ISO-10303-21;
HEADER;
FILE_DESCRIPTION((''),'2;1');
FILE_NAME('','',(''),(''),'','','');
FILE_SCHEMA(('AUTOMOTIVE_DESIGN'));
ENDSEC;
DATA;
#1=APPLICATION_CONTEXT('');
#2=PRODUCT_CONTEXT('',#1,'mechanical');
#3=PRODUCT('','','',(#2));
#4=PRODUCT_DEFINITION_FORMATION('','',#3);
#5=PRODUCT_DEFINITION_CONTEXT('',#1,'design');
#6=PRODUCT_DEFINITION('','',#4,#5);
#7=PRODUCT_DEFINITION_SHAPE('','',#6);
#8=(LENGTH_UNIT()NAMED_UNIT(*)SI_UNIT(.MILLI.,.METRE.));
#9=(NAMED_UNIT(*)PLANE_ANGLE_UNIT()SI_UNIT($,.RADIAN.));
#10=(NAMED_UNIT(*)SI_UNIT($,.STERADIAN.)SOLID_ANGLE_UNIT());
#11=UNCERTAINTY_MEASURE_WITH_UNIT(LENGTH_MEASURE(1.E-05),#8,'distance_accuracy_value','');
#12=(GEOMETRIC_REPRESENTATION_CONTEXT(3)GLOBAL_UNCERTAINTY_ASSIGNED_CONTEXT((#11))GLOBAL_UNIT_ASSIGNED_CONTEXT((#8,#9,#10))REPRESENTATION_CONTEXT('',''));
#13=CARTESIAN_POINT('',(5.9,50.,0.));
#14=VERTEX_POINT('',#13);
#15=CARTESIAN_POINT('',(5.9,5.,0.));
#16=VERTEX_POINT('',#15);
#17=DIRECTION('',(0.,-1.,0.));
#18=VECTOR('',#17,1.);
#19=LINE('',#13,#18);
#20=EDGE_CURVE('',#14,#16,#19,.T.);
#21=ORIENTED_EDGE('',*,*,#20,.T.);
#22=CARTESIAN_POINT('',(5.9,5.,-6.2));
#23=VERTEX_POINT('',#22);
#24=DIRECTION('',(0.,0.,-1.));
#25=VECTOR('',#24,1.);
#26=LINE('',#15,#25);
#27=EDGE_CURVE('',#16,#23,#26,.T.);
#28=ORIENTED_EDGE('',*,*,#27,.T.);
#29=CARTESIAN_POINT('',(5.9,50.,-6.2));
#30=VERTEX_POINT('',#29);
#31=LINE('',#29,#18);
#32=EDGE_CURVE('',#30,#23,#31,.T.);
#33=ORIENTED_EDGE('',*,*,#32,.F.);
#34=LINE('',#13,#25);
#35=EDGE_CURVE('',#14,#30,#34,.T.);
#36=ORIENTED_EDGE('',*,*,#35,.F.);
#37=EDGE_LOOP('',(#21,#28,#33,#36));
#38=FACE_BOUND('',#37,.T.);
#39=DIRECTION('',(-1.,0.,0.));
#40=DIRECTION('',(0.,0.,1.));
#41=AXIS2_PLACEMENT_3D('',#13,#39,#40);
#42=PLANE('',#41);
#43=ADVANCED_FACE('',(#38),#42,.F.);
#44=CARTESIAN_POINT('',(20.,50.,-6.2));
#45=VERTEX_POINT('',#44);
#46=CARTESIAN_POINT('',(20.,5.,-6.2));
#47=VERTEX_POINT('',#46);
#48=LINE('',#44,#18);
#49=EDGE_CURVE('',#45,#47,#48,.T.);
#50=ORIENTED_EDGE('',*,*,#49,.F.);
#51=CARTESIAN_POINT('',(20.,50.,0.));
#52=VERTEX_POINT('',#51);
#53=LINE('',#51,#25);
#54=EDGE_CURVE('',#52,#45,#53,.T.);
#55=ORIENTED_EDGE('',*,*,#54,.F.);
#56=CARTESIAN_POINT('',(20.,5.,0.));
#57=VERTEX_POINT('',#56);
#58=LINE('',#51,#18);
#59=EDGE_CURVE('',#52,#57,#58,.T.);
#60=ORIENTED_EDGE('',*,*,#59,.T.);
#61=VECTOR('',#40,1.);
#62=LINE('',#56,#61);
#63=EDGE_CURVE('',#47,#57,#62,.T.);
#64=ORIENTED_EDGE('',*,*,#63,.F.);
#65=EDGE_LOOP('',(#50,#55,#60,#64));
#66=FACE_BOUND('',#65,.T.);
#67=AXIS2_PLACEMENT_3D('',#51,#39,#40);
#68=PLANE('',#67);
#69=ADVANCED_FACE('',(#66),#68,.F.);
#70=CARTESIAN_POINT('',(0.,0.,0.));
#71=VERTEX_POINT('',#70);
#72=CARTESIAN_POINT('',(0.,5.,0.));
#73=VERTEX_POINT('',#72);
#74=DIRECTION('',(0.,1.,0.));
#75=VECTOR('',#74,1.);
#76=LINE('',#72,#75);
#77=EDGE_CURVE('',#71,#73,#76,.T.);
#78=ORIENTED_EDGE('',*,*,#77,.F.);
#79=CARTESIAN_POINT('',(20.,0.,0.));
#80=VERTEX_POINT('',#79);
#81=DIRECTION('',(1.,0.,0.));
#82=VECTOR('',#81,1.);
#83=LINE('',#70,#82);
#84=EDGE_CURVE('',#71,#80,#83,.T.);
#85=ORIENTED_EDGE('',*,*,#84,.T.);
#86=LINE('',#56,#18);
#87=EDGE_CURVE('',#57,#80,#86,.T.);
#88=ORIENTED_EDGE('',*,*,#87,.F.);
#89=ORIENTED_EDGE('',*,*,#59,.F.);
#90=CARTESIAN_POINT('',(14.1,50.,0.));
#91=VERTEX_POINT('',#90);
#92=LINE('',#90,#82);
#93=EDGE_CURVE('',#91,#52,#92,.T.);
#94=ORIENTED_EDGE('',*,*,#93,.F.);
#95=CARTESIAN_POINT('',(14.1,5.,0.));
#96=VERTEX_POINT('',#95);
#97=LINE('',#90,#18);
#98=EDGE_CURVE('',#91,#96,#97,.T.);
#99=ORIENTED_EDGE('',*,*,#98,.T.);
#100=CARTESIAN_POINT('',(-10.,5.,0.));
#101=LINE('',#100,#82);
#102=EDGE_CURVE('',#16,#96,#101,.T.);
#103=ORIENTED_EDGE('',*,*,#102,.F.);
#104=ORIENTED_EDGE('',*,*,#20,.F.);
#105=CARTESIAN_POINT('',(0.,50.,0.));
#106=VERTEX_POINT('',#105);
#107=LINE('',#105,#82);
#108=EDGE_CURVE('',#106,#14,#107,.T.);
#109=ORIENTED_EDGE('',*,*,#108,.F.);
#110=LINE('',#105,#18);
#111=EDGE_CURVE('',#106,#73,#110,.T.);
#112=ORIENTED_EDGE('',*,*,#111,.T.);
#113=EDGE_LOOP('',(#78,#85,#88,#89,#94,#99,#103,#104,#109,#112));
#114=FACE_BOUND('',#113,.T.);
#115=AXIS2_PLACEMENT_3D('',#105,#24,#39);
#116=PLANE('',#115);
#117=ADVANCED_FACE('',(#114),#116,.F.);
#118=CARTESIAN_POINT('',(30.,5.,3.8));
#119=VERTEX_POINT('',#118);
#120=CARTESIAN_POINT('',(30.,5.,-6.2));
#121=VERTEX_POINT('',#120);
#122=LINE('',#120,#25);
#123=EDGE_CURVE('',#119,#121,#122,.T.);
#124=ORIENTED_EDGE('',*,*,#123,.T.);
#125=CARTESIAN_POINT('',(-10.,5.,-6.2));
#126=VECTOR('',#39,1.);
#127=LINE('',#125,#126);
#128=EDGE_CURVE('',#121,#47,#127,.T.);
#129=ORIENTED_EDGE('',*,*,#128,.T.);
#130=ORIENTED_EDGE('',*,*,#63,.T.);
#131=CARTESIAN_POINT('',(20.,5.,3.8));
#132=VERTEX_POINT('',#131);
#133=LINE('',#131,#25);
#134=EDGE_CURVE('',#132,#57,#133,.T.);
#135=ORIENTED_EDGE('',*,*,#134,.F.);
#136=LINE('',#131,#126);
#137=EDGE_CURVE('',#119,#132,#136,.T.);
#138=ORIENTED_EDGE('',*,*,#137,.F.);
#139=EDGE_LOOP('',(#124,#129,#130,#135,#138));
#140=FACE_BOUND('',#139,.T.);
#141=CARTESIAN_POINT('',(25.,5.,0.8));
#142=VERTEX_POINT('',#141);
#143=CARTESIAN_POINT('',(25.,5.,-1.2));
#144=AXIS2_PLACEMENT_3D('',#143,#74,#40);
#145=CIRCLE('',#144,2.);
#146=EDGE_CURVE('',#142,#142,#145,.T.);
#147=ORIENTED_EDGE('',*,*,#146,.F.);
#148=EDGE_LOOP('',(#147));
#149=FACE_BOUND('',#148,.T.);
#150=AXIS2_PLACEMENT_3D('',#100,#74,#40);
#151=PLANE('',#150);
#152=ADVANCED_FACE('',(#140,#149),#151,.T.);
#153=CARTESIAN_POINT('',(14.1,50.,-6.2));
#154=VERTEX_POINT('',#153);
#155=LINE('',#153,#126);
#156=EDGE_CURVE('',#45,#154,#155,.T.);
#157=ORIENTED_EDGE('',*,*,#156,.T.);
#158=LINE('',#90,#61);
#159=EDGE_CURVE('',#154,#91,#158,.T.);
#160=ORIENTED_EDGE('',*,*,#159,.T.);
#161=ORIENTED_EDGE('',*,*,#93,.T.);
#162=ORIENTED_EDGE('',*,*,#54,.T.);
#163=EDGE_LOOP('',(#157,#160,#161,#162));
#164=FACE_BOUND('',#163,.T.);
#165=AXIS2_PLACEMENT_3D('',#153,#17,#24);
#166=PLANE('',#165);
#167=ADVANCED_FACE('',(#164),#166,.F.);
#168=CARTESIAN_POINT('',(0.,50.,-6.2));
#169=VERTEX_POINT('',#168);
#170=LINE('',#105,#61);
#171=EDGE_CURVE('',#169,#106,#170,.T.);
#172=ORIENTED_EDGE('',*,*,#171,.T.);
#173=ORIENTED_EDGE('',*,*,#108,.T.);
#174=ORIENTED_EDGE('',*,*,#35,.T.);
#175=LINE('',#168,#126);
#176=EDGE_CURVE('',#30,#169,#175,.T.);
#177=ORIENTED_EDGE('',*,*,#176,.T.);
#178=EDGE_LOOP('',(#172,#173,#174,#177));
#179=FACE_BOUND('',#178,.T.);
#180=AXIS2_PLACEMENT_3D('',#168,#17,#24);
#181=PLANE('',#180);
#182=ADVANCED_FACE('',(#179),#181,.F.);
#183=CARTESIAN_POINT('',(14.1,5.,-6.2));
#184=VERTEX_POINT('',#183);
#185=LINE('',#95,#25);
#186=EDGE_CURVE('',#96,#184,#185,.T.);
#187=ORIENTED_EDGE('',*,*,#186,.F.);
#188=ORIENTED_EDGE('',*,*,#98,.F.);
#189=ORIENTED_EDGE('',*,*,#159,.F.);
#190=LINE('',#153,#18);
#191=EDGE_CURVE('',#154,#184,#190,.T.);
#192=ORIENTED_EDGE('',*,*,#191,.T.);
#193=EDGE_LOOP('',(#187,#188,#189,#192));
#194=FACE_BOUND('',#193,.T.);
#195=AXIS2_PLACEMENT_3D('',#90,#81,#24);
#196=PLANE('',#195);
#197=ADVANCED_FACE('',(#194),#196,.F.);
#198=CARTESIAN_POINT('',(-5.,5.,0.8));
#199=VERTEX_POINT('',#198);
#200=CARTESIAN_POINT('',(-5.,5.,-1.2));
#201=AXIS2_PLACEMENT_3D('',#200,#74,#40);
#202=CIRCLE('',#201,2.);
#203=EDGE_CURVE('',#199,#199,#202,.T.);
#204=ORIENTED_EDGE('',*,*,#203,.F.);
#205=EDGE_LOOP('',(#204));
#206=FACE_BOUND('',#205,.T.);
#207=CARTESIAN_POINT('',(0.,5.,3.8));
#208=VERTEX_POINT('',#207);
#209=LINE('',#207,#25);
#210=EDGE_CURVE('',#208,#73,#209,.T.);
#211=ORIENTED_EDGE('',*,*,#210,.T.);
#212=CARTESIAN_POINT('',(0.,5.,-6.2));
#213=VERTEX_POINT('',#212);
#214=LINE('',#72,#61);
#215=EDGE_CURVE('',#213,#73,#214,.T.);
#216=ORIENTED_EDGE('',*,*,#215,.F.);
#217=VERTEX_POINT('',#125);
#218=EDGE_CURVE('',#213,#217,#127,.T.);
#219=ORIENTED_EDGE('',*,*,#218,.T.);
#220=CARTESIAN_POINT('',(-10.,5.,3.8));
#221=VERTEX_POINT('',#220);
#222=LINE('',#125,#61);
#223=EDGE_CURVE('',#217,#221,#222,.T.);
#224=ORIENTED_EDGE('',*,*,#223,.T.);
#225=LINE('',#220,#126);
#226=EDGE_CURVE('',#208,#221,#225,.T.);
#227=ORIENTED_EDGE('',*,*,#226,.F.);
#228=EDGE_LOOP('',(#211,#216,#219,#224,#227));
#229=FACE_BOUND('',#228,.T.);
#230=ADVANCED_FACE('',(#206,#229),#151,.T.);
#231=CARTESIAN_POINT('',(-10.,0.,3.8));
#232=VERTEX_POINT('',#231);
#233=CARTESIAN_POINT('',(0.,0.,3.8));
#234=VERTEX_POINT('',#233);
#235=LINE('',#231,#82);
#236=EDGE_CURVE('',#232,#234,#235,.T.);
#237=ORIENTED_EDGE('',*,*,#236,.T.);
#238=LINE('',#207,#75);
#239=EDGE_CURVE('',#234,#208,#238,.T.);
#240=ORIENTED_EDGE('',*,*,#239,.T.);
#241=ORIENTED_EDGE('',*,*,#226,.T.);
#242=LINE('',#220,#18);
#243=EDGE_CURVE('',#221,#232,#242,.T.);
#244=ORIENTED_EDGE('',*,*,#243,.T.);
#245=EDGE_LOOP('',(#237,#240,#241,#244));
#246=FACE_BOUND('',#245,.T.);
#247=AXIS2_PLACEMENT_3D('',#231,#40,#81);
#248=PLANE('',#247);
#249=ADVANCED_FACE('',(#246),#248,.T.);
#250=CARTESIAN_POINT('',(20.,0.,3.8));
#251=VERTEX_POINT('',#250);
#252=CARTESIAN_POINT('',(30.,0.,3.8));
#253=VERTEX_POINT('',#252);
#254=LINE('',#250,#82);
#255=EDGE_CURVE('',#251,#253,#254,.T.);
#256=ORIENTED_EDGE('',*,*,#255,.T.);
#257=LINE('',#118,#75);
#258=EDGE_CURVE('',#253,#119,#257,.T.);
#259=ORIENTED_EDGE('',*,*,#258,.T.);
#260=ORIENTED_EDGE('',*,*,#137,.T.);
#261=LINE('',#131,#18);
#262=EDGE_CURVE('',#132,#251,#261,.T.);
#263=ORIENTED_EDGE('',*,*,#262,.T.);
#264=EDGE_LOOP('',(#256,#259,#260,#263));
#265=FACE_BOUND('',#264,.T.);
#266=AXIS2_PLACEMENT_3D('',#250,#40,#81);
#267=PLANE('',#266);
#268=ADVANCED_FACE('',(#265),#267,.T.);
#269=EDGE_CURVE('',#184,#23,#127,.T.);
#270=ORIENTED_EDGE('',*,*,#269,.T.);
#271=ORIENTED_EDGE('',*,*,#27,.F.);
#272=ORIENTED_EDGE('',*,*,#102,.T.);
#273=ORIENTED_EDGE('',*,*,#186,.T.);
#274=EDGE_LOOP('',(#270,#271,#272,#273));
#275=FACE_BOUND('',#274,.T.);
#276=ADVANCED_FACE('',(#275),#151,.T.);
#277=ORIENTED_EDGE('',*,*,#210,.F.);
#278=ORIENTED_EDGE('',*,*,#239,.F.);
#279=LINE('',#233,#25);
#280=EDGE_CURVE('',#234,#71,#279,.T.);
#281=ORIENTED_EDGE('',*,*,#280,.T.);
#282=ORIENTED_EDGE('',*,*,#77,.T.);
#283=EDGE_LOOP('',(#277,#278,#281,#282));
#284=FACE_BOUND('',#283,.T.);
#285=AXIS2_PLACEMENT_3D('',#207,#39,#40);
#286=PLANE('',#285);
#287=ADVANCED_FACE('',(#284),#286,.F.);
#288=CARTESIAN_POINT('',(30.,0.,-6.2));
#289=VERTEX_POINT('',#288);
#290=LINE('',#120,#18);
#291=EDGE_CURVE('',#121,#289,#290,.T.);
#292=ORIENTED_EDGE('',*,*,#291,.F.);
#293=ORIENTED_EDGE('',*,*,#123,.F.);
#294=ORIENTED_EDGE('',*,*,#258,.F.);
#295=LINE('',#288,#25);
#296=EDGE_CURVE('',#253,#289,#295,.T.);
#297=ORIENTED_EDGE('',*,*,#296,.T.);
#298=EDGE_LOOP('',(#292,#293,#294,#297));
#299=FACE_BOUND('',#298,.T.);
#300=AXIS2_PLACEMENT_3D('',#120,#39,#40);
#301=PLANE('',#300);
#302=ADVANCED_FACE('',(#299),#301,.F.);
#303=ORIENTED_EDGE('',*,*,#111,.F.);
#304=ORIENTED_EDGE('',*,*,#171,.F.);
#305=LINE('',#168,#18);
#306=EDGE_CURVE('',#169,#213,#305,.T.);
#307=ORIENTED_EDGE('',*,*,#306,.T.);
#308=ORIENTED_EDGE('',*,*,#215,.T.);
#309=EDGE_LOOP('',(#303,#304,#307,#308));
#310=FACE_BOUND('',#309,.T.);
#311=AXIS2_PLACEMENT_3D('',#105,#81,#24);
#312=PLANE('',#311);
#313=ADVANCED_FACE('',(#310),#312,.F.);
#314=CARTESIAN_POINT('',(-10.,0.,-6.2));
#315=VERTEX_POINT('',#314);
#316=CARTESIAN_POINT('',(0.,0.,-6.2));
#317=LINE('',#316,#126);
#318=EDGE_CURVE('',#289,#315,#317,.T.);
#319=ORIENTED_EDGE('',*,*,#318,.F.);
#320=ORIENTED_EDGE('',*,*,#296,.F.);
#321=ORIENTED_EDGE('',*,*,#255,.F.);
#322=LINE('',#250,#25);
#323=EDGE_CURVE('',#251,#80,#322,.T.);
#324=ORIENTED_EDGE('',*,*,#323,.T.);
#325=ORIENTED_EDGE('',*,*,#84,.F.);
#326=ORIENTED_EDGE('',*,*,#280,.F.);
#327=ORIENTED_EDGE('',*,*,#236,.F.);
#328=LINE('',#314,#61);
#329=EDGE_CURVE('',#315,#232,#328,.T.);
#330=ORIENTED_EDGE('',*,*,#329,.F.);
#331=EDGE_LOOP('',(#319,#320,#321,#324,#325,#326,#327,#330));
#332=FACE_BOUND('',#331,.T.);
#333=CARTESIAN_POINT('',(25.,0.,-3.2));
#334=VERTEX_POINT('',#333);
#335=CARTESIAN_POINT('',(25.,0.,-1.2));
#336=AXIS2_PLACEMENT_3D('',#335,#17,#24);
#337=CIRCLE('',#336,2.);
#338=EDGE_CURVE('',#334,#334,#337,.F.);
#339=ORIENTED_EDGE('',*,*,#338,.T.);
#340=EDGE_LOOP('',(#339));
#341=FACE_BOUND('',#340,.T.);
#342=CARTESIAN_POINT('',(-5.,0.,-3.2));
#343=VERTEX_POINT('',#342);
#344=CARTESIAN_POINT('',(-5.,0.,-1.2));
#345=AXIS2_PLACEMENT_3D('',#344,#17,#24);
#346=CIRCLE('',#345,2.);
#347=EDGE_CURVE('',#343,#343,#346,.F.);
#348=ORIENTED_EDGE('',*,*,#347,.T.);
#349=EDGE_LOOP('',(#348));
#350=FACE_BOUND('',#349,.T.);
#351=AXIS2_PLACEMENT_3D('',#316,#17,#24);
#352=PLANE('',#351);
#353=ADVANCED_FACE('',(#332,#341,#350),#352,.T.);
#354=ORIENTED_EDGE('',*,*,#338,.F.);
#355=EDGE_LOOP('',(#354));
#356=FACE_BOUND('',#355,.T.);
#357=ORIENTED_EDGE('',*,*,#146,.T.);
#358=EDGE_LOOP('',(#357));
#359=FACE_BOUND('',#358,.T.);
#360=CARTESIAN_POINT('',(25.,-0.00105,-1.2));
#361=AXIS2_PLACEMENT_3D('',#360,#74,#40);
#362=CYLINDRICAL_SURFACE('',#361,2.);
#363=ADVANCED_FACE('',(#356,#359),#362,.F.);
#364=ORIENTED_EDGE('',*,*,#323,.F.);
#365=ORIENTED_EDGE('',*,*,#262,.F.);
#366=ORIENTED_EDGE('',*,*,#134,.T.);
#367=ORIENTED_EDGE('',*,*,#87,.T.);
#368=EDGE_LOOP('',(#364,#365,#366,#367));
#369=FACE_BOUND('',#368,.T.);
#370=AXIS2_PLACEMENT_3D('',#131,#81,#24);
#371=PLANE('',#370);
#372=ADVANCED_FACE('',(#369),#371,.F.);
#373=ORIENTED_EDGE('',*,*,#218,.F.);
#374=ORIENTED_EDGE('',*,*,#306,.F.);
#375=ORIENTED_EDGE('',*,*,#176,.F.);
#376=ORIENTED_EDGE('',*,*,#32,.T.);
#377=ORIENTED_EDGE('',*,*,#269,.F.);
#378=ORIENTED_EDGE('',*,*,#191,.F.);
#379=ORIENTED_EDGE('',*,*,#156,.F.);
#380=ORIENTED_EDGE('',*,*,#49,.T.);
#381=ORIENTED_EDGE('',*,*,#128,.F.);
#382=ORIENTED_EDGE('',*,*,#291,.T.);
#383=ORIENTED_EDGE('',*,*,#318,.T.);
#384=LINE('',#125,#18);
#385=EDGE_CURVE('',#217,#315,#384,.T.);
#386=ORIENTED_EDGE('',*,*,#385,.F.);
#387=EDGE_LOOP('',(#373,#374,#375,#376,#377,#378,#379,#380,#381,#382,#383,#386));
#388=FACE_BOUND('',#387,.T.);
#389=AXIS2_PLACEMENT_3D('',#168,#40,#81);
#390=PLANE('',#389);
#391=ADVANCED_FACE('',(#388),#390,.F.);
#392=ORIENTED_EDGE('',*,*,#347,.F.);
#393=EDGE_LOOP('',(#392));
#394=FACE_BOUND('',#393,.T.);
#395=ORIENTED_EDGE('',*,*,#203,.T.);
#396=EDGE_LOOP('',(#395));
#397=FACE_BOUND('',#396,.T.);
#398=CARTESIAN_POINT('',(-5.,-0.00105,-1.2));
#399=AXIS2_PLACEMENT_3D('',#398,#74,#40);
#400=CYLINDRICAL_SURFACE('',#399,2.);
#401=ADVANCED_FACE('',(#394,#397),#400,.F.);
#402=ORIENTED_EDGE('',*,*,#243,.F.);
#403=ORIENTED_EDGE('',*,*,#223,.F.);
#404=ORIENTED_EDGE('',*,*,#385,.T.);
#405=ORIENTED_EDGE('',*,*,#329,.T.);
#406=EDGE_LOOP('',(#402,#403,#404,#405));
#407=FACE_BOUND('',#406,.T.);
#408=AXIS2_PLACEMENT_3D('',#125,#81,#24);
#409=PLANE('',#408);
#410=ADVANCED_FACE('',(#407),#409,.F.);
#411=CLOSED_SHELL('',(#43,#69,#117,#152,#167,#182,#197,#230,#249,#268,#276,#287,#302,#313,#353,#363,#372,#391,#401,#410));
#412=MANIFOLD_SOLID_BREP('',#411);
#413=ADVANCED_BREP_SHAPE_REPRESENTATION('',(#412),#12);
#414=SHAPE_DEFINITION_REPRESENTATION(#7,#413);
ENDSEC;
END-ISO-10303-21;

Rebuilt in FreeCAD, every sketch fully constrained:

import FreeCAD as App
import Part
import Sketcher


def add_polygon(sketch, points):
    """Adds a closed chain of lines whose ends are joined by coincident constraints."""
    first, n = sketch.GeometryCount, len(points)
    for a, b in zip(points, points[1:] + points[:1]):
        sketch.addGeometry(Part.LineSegment(App.Vector(*a, 0), App.Vector(*b, 0)), False)
    for i in range(n):
        sketch.addConstraint(Sketcher.Constraint("Coincident", first + i, 2, first + (i + 1) % n, 1))

doc = App.newDocument("Part")
body = doc.addObject("PartDesign::Body", "Body")

# Sketch on XZ plane
sketch1 = body.newObject("Sketcher::SketchObject", "Sketch")
sketch1.AttachmentSupport = (doc.getObject("XZ_Plane"), [""])
sketch1.MapMode = "FlatFace"
add_polygon(sketch1, [(0, -6), (0, 0), (6, 0), (6, -6)])  # lines 0-3
sketch1.addConstraint(Sketcher.Constraint("Vertical", 0))
sketch1.addConstraint(Sketcher.Constraint("Horizontal", 1))
sketch1.addConstraint(Sketcher.Constraint("Vertical", 2))
sketch1.addConstraint(Sketcher.Constraint("Horizontal", 3))
sketch1.addConstraint(Sketcher.Constraint("Coincident", 0, 2, -1, 1))
sketch1.addConstraint(Sketcher.Constraint("DistanceX", 1, 1, 1, 2, 5.9))
sketch1.addConstraint(Sketcher.Constraint("DistanceY", 0, 1, 0, 2, 6.2))
pad1 = body.newObject("PartDesign::Pad", "Pad")
pad1.Profile = sketch1
pad1.Length = 50
pad1.Reversed = True
body2 = doc.addObject("PartDesign::Body", "Body001")

# Sketch on XZ plane
sketch2 = body2.newObject("Sketcher::SketchObject", "Sketch001")
sketch2.AttachmentSupport = (doc.getObject("XZ_Plane001"), [""])
sketch2.MapMode = "FlatFace"
add_polygon(sketch2, [(14, -6), (14, 0), (20, 0), (20, -6)])  # lines 0-3
sketch2.addConstraint(Sketcher.Constraint("Vertical", 0))
sketch2.addConstraint(Sketcher.Constraint("Horizontal", 1))
sketch2.addConstraint(Sketcher.Constraint("Vertical", 2))
sketch2.addConstraint(Sketcher.Constraint("Horizontal", 3))
sketch2.addConstraint(Sketcher.Constraint("PointOnObject", 0, 2, -1))
sketch2.addConstraint(Sketcher.Constraint("DistanceX", 1, 1, 1, 2, 5.9))
sketch2.addConstraint(Sketcher.Constraint("DistanceY", 0, 1, 0, 2, 6.2))
sketch2.addConstraint(Sketcher.Constraint("DistanceX", -1, 1, 1, 2, 20.0))
pad2 = body2.newObject("PartDesign::Pad", "Pad001")
pad2.Profile = sketch2
pad2.Length = 50
pad2.Reversed = True
body.AllowCompound = True
doc.recompute()

boolean = body.newObject("PartDesign::Boolean", "Boolean")
boolean.Type = "Fuse"
boolean.addObjects([body2])

# Sketch on XZ plane
sketch3 = body.newObject("Sketcher::SketchObject", "Sketch002")
sketch3.AttachmentSupport = (doc.getObject("XZ_Plane"), [""])
sketch3.MapMode = "FlatFace"
add_polygon(sketch3, [(-10, -6), (-10, 0), (30, 0), (30, -6)])  # lines 0-3
sketch3.addConstraint(Sketcher.Constraint("Vertical", 0))
sketch3.addConstraint(Sketcher.Constraint("Horizontal", 1))
sketch3.addConstraint(Sketcher.Constraint("Vertical", 2))
sketch3.addConstraint(Sketcher.Constraint("Horizontal", 3))
sketch3.addConstraint(Sketcher.Constraint("PointOnObject", 0, 2, -1))
sketch3.addConstraint(Sketcher.Constraint("DistanceX", 1, 1, 1, 2, 40.0))
sketch3.addConstraint(Sketcher.Constraint("DistanceY", 0, 1, 0, 2, 6.2))
sketch3.addConstraint(Sketcher.Constraint("DistanceX", 0, 2, -1, 1, 10.0))
pad3 = body.newObject("PartDesign::Pad", "Pad002")
pad3.Profile = sketch3
pad3.Length = 5
pad3.Reversed = True

# Sketch on XY plane
sketch4 = body.newObject("Sketcher::SketchObject", "Sketch003")
sketch4.AttachmentSupport = (doc.getObject("XY_Plane"), [""])
sketch4.MapMode = "FlatFace"
add_polygon(sketch4, [(-10, 5), (-10, 0), (0, 0), (0, 5)])  # lines 0-3
add_polygon(sketch4, [(20, 5), (20, 0), (30, 0), (30, 5)])  # lines 4-7
sketch4.addConstraint(Sketcher.Constraint("Vertical", 0))
sketch4.addConstraint(Sketcher.Constraint("Horizontal", 1))
sketch4.addConstraint(Sketcher.Constraint("Vertical", 2))
sketch4.addConstraint(Sketcher.Constraint("Horizontal", 3))
sketch4.addConstraint(Sketcher.Constraint("Vertical", 4))
sketch4.addConstraint(Sketcher.Constraint("Horizontal", 5))
sketch4.addConstraint(Sketcher.Constraint("Vertical", 6))
sketch4.addConstraint(Sketcher.Constraint("Horizontal", 7))
sketch4.addConstraint(Sketcher.Constraint("Coincident", 1, 2, -1, 1))
sketch4.addConstraint(Sketcher.Constraint("PointOnObject", 4, 2, -1))
sketch4.addConstraint(Sketcher.Constraint("Horizontal", 3, 2, 6, 2))
sketch4.addConstraint(Sketcher.Constraint("Equal", 3, 5))
sketch4.addConstraint(Sketcher.Constraint("DistanceX", 1, 1, 1, 2, 10.0))
sketch4.addConstraint(Sketcher.Constraint("DistanceY", 0, 2, 0, 1, 5.0))
sketch4.addConstraint(Sketcher.Constraint("DistanceX", -1, 1, 4, 2, 20.0))
pad4 = body.newObject("PartDesign::Pad", "Pad003")
pad4.Profile = sketch4
pad4.Length = 3.8

# Sketch on XZ plane
sketch5 = body.newObject("Sketcher::SketchObject", "Sketch004")
sketch5.AttachmentSupport = (doc.getObject("XZ_Plane"), [""])
sketch5.MapMode = "FlatFace"
sketch5.AttachmentOffset = App.Placement(App.Vector(0, 0, -5), App.Rotation())
sketch5.addGeometry(Part.Circle(App.Vector(25, -1.2, 0), App.Vector(0, 0, 1), 2), False)
sketch5.addConstraint(Sketcher.Constraint("Diameter", 0, 4.0))
sketch5.addConstraint(Sketcher.Constraint("DistanceX", -1, 1, 0, 3, 25.0))
sketch5.addConstraint(Sketcher.Constraint("DistanceY", 0, 3, -1, 1, 1.2))
pocket1 = body.newObject("PartDesign::Pocket", "Pocket")
pocket1.Profile = sketch5
pocket1.Type = "UpToFirst"
pocket1.Reversed = True

# Sketch on XZ plane
sketch6 = body.newObject("Sketcher::SketchObject", "Sketch005")
sketch6.AttachmentSupport = (doc.getObject("XZ_Plane"), [""])
sketch6.MapMode = "FlatFace"
sketch6.AttachmentOffset = App.Placement(App.Vector(0, 0, -5), App.Rotation())
sketch6.addGeometry(Part.Circle(App.Vector(-5, -1.2, 0), App.Vector(0, 0, 1), 2), False)
sketch6.addConstraint(Sketcher.Constraint("Diameter", 0, 4.0))
sketch6.addConstraint(Sketcher.Constraint("DistanceX", 0, 3, -1, 1, 5.0))
sketch6.addConstraint(Sketcher.Constraint("DistanceY", 0, 3, -1, 1, 1.2))
pocket2 = body.newObject("PartDesign::Pocket", "Pocket001")
pocket2.Profile = sketch6
pocket2.Type = "UpToFirst"
pocket2.Reversed = True

doc.recompute()
